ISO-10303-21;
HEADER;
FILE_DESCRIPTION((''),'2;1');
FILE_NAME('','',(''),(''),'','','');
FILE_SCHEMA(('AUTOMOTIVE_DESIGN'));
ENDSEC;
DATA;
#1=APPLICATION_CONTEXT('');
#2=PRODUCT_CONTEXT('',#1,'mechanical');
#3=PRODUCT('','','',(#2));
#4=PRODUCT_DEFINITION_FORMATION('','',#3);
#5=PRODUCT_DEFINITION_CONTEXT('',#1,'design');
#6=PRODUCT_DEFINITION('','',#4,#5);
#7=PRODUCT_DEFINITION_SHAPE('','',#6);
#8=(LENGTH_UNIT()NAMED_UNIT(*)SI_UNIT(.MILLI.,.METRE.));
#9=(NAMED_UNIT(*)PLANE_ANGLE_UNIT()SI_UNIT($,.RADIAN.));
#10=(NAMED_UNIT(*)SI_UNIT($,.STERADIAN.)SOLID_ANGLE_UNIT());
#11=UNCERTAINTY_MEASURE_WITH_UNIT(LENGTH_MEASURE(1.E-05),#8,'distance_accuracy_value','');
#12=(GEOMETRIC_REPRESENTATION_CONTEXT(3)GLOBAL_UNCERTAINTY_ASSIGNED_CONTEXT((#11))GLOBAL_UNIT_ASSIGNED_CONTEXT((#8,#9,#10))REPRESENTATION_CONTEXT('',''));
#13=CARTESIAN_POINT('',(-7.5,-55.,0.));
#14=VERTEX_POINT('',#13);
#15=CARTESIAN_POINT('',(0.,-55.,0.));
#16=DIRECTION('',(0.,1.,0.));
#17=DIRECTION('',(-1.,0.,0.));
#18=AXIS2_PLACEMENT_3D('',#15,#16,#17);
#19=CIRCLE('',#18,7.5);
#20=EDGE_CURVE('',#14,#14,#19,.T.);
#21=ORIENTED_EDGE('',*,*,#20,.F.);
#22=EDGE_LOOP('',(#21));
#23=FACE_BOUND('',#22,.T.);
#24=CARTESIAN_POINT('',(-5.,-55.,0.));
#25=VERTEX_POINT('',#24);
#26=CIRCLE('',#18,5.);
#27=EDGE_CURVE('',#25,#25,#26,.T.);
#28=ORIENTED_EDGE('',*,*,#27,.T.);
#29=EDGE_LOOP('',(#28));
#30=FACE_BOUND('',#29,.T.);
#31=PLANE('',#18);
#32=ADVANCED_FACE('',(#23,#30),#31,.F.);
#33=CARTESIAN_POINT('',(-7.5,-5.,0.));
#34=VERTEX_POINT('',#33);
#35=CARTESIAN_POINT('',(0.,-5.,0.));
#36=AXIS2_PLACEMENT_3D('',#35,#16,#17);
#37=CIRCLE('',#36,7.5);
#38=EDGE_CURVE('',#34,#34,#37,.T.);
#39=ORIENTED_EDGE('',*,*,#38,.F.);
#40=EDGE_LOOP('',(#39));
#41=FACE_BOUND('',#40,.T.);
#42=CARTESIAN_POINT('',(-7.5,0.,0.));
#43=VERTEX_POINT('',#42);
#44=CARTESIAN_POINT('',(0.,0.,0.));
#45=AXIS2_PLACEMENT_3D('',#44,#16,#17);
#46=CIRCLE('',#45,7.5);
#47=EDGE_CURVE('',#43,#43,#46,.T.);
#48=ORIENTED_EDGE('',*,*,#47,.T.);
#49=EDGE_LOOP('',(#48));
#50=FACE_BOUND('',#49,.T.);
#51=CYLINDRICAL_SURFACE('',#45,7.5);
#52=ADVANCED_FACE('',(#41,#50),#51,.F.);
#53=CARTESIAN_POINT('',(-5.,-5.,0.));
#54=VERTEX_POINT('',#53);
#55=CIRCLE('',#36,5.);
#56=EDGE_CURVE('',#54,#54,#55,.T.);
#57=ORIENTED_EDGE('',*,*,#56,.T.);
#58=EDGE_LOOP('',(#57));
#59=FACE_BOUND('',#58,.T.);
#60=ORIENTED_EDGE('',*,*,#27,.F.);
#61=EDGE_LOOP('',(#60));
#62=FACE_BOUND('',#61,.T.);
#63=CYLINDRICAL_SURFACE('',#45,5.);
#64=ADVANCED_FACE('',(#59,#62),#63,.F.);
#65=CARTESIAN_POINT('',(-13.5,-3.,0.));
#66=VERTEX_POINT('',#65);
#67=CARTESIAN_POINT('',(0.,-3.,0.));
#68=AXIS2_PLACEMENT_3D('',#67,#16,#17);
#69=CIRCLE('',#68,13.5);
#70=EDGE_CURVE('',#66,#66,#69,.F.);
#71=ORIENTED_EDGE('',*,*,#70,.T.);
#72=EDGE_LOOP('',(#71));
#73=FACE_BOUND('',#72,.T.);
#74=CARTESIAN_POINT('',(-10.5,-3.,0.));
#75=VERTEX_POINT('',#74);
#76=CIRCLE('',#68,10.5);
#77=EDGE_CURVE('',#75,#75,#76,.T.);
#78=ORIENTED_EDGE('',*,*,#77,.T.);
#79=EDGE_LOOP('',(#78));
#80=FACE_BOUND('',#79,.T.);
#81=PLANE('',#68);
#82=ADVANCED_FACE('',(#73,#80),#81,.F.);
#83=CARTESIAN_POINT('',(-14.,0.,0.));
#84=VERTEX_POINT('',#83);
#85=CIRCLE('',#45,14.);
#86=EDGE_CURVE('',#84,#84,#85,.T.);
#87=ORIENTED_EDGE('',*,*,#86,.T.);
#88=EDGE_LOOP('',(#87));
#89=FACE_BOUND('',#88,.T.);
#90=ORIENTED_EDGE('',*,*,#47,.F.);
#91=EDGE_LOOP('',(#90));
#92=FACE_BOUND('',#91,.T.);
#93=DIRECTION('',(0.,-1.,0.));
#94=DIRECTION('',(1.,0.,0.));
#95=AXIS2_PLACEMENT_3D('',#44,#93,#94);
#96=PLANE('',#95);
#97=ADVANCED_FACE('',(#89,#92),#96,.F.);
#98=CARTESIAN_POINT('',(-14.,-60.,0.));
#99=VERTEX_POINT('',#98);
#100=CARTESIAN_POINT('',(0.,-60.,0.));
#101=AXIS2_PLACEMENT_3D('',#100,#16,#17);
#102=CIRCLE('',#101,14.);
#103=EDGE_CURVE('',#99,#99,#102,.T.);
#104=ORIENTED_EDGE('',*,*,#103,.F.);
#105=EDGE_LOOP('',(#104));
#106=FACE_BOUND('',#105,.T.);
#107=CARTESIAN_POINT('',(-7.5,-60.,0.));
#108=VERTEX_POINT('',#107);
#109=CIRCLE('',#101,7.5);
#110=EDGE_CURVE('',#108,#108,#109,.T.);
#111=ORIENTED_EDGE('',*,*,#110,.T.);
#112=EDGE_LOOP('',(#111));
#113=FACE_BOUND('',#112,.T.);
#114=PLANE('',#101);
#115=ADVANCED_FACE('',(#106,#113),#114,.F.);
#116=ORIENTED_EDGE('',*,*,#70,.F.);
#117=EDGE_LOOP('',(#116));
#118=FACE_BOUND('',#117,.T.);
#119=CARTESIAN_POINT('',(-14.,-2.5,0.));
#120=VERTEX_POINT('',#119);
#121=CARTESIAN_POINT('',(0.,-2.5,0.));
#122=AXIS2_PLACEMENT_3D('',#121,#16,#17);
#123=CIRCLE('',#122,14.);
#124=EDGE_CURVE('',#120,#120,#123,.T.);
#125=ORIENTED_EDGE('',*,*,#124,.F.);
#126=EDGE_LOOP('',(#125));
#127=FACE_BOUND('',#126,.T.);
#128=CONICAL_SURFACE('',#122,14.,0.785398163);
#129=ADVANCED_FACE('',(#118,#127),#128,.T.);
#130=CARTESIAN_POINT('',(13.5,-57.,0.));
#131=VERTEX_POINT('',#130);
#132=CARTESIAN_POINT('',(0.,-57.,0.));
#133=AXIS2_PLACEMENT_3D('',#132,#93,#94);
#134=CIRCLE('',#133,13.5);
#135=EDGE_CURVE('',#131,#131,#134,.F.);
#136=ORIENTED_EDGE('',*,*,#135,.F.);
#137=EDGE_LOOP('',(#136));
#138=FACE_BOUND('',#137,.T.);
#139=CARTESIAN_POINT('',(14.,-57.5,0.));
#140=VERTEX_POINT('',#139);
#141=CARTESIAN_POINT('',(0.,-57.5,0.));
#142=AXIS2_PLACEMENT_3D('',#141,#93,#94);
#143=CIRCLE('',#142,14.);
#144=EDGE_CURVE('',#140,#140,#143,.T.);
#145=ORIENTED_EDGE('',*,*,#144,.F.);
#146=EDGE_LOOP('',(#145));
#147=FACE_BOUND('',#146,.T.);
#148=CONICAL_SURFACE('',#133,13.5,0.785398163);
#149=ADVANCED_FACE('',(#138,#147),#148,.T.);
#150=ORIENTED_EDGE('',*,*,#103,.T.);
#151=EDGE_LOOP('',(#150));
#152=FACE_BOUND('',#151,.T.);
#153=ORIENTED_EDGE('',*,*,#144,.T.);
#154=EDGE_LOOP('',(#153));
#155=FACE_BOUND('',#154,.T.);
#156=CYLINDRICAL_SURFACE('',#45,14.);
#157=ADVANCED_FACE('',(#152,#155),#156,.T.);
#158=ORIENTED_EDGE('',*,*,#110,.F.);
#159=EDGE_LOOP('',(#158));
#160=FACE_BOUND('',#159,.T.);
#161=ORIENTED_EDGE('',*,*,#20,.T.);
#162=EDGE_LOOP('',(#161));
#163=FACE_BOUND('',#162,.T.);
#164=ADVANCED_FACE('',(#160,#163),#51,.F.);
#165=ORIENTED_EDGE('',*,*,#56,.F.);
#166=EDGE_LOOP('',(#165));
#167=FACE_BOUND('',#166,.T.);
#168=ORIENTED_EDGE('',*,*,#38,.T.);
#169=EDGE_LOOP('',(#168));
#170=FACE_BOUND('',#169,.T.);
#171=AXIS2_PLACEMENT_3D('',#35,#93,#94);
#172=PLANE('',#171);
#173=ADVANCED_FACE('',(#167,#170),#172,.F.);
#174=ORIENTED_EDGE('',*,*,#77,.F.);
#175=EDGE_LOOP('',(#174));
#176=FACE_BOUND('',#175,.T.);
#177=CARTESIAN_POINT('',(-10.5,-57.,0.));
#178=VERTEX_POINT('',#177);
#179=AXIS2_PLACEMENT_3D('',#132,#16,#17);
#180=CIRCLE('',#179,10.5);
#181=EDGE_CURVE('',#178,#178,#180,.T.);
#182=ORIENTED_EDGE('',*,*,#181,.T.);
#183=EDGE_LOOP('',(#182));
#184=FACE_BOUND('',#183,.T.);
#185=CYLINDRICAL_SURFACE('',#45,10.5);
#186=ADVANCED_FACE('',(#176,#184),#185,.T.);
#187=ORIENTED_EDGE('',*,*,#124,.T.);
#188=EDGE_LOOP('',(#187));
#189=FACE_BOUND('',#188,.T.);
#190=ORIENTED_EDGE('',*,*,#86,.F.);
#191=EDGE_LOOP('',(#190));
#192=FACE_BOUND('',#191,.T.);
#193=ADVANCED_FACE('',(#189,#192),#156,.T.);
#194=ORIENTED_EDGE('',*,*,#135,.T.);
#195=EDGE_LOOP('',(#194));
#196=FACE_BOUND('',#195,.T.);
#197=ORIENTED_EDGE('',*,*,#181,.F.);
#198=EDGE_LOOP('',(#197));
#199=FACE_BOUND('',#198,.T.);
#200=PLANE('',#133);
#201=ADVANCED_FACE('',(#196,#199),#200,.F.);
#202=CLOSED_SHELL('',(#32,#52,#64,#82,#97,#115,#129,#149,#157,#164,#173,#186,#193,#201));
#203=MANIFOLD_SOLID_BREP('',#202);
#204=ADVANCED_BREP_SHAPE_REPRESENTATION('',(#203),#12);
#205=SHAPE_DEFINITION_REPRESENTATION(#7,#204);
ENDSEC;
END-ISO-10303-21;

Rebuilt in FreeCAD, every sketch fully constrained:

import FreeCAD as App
import Part
import Sketcher


def edges_at(feature, points):
    """Names of the edges that pass closest to the given points."""
    edges = feature.Shape.Edges
    near = lambda p: min(range(len(edges)), key=lambda i: edges[i].distToShape(Part.Vertex(*p))[0])
    return sorted({f"Edge{near(p) + 1}" for p in points})


def add_polygon(sketch, points):
    """Adds a closed chain of lines whose ends are joined by coincident constraints."""
    first, n = sketch.GeometryCount, len(points)
    for a, b in zip(points, points[1:] + points[:1]):
        sketch.addGeometry(Part.LineSegment(App.Vector(*a, 0), App.Vector(*b, 0)), False)
    for i in range(n):
        sketch.addConstraint(Sketcher.Constraint("Coincident", first + i, 2, first + (i + 1) % n, 1))

doc = App.newDocument("Part")
body = doc.addObject("PartDesign::Body", "Body")

sketch1 = body.newObject("Sketcher::SketchObject", "Sketch")
sketch1.AttachmentSupport = (doc.getObject("XY_Plane"), [""])
sketch1.MapMode = "FlatFace"
add_polygon(sketch1, [(7.5, -55), (7.5, -60), (14, -60), (14, -57), (10.5, -57), (10.5, -3), (14, -3), (14, 0), (7.5, 0), (7.5, -5), (5, -5), (5, -55)])
sketch1.addConstraint(Sketcher.Constraint("Vertical", 0))
sketch1.addConstraint(Sketcher.Constraint("Horizontal", 1))
sketch1.addConstraint(Sketcher.Constraint("Vertical", 2))
sketch1.addConstraint(Sketcher.Constraint("Horizontal", 3))
sketch1.addConstraint(Sketcher.Constraint("Vertical", 4))
sketch1.addConstraint(Sketcher.Constraint("Horizontal", 5))
sketch1.addConstraint(Sketcher.Constraint("Vertical", 6))
sketch1.addConstraint(Sketcher.Constraint("Horizontal", 7))
sketch1.addConstraint(Sketcher.Constraint("Vertical", 8))
sketch1.addConstraint(Sketcher.Constraint("Horizontal", 9))
sketch1.addConstraint(Sketcher.Constraint("Vertical", 10))
sketch1.addConstraint(Sketcher.Constraint("Horizontal", 11))
sketch1.addConstraint(Sketcher.Constraint("PointOnObject", 6, 2, -1))
sketch1.addConstraint(Sketcher.Constraint("Vertical", 2, 2, 5, 2))
sketch1.addConstraint(Sketcher.Constraint("Vertical", 0, 2, 7, 2))
sketch1.addConstraint(Sketcher.Constraint("Equal", 2, 6))
sketch1.addConstraint(Sketcher.Constraint("Equal", 0, 8))
sketch1.addConstraint(Sketcher.Constraint("DistanceY", 0, 2, 0, 1, 5.0))
sketch1.addConstraint(Sketcher.Constraint("DistanceY", 2, 1, 2, 2, 3.0))
sketch1.addConstraint(Sketcher.Constraint("DistanceY", 4, 1, 4, 2, 54.0))
sketch1.addConstraint(Sketcher.Constraint("DistanceX", 1, 1, 1, 2, 6.5))
sketch1.addConstraint(Sketcher.Constraint("DistanceX", 3, 2, 3, 1, 3.5))
sketch1.addConstraint(Sketcher.Constraint("DistanceX", 9, 2, 9, 1, 2.5))
sketch1.addConstraint(Sketcher.Constraint("DistanceX", -1, 1, 1, 2, 14.0))
revolution = body.newObject("PartDesign::Revolution", "Revolution")
revolution.Profile = sketch1
revolution.ReferenceAxis = (sketch1, ["V_Axis"])
revolution.Angle = 360
doc.recompute()

chamfer = body.newObject("PartDesign::Chamfer", "Chamfer")
chamfer.Base = (revolution, edges_at(revolution, [(14, -3, 0), (14, -57, 0)]))
chamfer.Size = 0.5

doc.recompute()
